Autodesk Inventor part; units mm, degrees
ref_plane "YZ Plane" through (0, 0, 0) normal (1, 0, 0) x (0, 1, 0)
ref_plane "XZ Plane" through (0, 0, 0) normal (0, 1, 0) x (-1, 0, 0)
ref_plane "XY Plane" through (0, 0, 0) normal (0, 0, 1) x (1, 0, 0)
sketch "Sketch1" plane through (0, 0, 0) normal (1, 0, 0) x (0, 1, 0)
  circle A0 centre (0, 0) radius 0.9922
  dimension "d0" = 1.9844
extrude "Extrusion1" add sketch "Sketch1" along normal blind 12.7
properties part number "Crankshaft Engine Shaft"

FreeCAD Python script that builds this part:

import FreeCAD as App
import Part
import Sketcher
Q = App.Units.Quantity

doc = App.newDocument("Part")
body = doc.addObject("PartDesign::Body", "Body")

# Sketch on YZ plane
sketch1 = doc.addObject("Sketcher::SketchObject", "Sketch")
body.addObject(sketch1)
sketch1.AttachmentSupport = (doc.YZ_Plane, [""])
sketch1.MapMode = "FlatFace"
sketch1.addGeometry(Part.Circle(App.Vector(0, 0, 0), App.Vector(0, 0, 1), 1), False)
sketch1.addConstraint(Sketcher.Constraint("Coincident", 0, 3, -1, 1))
sketch1.addConstraint(Sketcher.Constraint("Diameter", 0, Q("0.078126 in")))
pad1 = doc.addObject("PartDesign::Pad", "Pad")
body.addObject(pad1)
pad1.Profile = sketch1
pad1.Length = Q("0.5 in")

doc.recompute()
